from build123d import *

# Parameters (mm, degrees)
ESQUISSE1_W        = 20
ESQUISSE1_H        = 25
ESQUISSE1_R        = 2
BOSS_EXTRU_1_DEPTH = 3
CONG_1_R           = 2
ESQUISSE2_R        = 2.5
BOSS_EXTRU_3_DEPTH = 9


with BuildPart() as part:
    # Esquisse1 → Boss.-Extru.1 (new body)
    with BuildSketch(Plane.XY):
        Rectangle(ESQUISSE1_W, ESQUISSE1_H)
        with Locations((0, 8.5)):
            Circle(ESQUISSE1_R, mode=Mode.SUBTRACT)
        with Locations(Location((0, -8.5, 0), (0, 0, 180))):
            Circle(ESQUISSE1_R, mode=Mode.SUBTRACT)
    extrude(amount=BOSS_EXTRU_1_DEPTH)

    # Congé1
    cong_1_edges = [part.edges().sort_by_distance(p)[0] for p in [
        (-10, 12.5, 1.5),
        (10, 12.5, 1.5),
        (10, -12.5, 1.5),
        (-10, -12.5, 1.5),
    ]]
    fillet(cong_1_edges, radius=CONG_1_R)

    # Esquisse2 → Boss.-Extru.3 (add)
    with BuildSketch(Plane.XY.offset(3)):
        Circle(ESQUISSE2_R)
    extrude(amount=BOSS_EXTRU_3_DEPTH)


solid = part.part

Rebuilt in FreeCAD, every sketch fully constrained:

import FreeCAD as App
import Part
import Sketcher
from FreeCAD import Vector


def edges_at(feature, points):
    """Names of the edges that pass closest to the given points."""
    edges = feature.Shape.Edges
    near = lambda p: min(range(len(edges)), key=lambda i: edges[i].distToShape(Part.Vertex(*p))[0])
    return sorted({f"Edge{near(p) + 1}" for p in points})

doc = App.newDocument("Part")
body = doc.addObject("PartDesign::Body", "Body")

# Sketch on XY plane
sketch1 = body.newObject("Sketcher::SketchObject", "Sketch")
sketch1.AttachmentSupport = (doc.getObject("XY_Plane"), [""])
sketch1.MapMode = "FlatFace"
sketch1.addGeometry([
    Part.LineSegment(Vector(-10, 12.5, 0), Vector(-10, -12.5, 0)),  # 0
    Part.LineSegment(Vector(-10, -12.5, 0), Vector(10, -12.5, 0)),  # 1
    Part.LineSegment(Vector(10, -12.5, 0), Vector(10, 12.5, 0)),  # 2
    Part.LineSegment(Vector(10, 12.5, 0), Vector(-10, 12.5, 0)),  # 3
    Part.Circle(Vector(0, -8.5, 0), Vector(0, 0, 1), 2),  # 4
    Part.Circle(Vector(0, 8.5, 0), Vector(0, 0, 1), 2),  # 5
], False)
sketch1.addConstraint([
    Sketcher.Constraint("Coincident", 0, 2, 1, 1),
    Sketcher.Constraint("Coincident", 1, 2, 2, 1),
    Sketcher.Constraint("Coincident", 2, 2, 3, 1),
    Sketcher.Constraint("Coincident", 3, 2, 0, 1),
    Sketcher.Constraint("Vertical", 0),
    Sketcher.Constraint("Horizontal", 1),
    Sketcher.Constraint("Vertical", 2),
    Sketcher.Constraint("Horizontal", 3),
    Sketcher.Constraint("Equal", 4, 5),
    Sketcher.Constraint("Symmetric", 4, 3, 5, 3, -1, 1),
    Sketcher.Constraint("Symmetric", 0, 2, 2, 2, -1, 1),
    Sketcher.Constraint("PointOnObject", 4, 3, -2),
    Sketcher.Constraint("Diameter", 4, 4.0),
    Sketcher.Constraint("DistanceX", 1, 1, 1, 2, 20.0),
    Sketcher.Constraint("DistanceY", 0, 2, 0, 1, 25.0),
    Sketcher.Constraint("DistanceY", 4, 3, 5, 3, 17.0),
])
pad1 = body.newObject("PartDesign::Pad", "Pad")
pad1.Profile = sketch1
pad1.Length = 3
doc.recompute()

fillet = body.newObject("PartDesign::Fillet", "Fillet")
fillet.Base = (pad1, edges_at(pad1, [
    (-10, 12.5, 1.5),
    (10, 12.5, 1.5),
    (10, -12.5, 1.5),
    (-10, -12.5, 1.5),
]))
fillet.Radius = 2

# Sketch on XY plane
sketch2 = body.newObject("Sketcher::SketchObject", "Sketch001")
sketch2.AttachmentSupport = (doc.getObject("XY_Plane"), [""])
sketch2.MapMode = "FlatFace"
sketch2.AttachmentOffset = App.Placement(Vector(0, 0, 3), App.Rotation())
sketch2.addGeometry(Part.Circle(Vector(0, 0, 0), Vector(0, 0, 1), 2.5), False)
sketch2.addConstraint([
    Sketcher.Constraint("Coincident", 0, 3, -1, 1),
    Sketcher.Constraint("Diameter", 0, 5.0),
])
pad2 = body.newObject("PartDesign::Pad", "Pad001")
pad2.Profile = sketch2
pad2.Length = 9

doc.recompute()
